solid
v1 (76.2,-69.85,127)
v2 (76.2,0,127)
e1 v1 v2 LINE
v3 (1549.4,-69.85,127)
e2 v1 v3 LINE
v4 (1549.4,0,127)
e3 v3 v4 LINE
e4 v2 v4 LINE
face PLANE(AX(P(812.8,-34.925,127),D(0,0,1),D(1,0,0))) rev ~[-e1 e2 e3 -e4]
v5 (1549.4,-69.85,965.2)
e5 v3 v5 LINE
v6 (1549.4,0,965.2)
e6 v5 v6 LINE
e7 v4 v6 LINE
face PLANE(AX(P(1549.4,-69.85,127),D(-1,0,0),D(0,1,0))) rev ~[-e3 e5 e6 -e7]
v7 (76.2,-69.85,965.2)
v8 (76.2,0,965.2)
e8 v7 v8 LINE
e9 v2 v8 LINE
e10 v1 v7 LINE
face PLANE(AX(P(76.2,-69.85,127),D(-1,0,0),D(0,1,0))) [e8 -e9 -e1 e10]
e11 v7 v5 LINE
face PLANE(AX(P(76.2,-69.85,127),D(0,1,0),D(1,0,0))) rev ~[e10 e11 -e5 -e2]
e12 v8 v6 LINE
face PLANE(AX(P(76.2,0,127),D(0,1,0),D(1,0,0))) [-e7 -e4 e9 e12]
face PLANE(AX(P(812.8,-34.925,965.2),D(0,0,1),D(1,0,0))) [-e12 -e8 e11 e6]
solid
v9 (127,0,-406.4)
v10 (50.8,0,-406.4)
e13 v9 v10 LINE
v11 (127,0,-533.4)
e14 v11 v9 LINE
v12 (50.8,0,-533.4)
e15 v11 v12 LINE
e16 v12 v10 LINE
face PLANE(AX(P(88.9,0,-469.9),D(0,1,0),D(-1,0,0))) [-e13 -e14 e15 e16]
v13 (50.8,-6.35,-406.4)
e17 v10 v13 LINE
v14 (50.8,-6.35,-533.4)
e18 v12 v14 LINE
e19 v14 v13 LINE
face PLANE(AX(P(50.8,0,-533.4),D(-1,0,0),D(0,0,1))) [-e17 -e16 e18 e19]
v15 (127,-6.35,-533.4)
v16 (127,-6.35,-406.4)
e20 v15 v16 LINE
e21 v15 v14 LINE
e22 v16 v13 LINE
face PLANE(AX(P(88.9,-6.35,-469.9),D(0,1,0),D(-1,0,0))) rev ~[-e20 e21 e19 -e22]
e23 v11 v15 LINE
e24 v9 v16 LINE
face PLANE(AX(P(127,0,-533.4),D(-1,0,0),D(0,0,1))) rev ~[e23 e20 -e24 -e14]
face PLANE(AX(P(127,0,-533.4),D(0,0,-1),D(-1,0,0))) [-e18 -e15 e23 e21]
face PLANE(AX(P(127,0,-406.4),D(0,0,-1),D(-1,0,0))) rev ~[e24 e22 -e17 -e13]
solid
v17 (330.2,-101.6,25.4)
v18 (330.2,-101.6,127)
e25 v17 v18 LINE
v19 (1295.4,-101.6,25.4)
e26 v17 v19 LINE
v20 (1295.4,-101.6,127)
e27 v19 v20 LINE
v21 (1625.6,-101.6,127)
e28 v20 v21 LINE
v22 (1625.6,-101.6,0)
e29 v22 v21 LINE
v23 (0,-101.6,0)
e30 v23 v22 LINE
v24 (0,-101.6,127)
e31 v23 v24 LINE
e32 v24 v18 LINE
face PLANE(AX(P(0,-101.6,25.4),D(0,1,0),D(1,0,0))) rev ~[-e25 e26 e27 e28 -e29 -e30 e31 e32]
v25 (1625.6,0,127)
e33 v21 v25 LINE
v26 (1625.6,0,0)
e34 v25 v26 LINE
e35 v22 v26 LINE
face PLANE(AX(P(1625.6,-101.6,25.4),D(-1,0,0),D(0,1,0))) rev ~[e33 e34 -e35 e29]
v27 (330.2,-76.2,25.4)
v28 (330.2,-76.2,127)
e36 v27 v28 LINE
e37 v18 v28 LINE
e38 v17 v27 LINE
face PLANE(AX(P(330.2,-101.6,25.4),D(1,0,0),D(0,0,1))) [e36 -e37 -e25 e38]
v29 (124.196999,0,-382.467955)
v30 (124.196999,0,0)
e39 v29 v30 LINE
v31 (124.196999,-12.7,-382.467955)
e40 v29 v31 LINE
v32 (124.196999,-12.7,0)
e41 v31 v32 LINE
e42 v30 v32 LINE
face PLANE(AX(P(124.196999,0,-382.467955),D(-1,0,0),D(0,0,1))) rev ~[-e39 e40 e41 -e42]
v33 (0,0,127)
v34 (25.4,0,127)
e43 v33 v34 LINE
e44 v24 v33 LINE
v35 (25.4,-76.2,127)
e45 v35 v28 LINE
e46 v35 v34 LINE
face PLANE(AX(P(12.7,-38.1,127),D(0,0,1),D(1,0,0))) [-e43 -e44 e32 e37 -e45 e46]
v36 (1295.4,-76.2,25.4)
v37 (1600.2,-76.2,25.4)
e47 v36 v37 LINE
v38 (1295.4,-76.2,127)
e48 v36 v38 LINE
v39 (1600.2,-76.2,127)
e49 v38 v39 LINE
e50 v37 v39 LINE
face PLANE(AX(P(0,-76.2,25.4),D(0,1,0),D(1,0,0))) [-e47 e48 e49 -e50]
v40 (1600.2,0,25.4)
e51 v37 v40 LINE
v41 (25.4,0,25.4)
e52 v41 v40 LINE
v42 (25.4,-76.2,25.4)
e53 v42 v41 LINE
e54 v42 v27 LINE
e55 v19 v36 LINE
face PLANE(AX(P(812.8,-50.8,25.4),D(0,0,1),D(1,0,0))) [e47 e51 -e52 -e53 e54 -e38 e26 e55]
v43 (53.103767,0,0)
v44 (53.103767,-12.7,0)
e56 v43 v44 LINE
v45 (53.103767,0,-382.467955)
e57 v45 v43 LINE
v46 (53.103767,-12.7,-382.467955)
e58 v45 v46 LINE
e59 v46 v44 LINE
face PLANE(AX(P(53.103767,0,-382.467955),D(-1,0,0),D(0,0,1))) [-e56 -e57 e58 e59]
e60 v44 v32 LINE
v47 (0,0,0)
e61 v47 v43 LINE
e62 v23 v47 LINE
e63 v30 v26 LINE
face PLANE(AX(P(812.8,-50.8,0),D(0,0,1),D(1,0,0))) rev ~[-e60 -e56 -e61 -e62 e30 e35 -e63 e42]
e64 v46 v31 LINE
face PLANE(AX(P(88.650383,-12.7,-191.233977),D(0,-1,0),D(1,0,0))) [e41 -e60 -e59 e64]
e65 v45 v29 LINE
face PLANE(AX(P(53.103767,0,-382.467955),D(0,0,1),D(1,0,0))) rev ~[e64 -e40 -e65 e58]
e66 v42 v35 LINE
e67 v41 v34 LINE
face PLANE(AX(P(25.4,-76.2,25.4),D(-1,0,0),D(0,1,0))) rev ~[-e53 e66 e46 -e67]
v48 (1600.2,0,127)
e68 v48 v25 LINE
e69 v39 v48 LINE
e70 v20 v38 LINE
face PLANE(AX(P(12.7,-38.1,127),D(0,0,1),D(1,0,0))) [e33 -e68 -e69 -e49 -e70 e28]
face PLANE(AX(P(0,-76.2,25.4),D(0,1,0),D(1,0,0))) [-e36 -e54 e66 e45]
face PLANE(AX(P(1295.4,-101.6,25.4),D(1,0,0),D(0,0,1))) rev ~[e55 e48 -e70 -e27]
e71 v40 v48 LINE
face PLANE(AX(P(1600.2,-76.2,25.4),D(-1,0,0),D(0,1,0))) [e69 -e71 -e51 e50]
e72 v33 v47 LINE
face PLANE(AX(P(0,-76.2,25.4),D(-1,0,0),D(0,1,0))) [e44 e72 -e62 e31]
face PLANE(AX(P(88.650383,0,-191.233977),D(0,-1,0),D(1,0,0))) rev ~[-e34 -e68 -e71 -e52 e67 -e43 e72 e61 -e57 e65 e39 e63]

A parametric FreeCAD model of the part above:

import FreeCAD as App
import Part
import Sketcher

V = App.Vector
Q = App.Units.Quantity

doc = App.newDocument("Part")
body = doc.addObject("PartDesign::Body", "Body")

# Sketch on XY plane
sketch1 = doc.addObject("Sketcher::SketchObject", "Sketch")
body.addObject(sketch1)
sketch1.AttachmentSupport = (doc.XY_Plane, [""])
sketch1.MapMode = "FlatFace"
sketch1.addGeometry([
    Part.LineSegment(V(0, 0, 0), V(0, -102, 0)),
    Part.LineSegment(V(0, -102, 0), V(1626, -102, 0)),
    Part.LineSegment(V(1626, -102, 0), V(1626, 0, 0)),
    Part.LineSegment(V(1626, 0, 0), V(0, 0, 0)),
], False)
sketch1.addConstraint([
    Sketcher.Constraint("Coincident", 0, 2, 1, 1),
    Sketcher.Constraint("Coincident", 1, 2, 2, 1),
    Sketcher.Constraint("Coincident", 2, 2, 3, 1),
    Sketcher.Constraint("Coincident", 3, 2, 0, 1),
    Sketcher.Constraint("Vertical", 0),
    Sketcher.Constraint("Horizontal", 1),
    Sketcher.Constraint("Vertical", 2),
    Sketcher.Constraint("Horizontal", 3),
    Sketcher.Constraint("Coincident", 3, 2, -1, 1),
    Sketcher.Constraint("DistanceX", 1, 1, 1, 2, Q("64 in")),
    Sketcher.Constraint("DistanceY", 0, 2, 0, 1, Q("4 in")),
])
pad1 = doc.addObject("PartDesign::Pad", "Pad")
body.addObject(pad1)
pad1.Profile = sketch1
pad1.Length = Q("1 in")

# Sketch on XY plane
sketch2 = doc.addObject("Sketcher::SketchObject", "Sketch001")
body.addObject(sketch2)
sketch2.AttachmentSupport = (doc.XY_Plane, [""])
sketch2.MapMode = "FlatFace"
sketch2.AttachmentOffset = App.Placement(V(0, 0, 1 * 25.4), App.Rotation())
sketch2.addGeometry([
    Part.LineSegment(V(0, -76, 0), V(0, -102, 0)),
    Part.LineSegment(V(0, -102, 0), V(1626, -102, 0)),
    Part.LineSegment(V(1626, -102, 0), V(1626, -76, 0)),
    Part.LineSegment(V(1626, -76, 0), V(0, -76, 0)),
], False)
sketch2.addConstraint([
    Sketcher.Constraint("Coincident", 0, 2, 1, 1),
    Sketcher.Constraint("Coincident", 1, 2, 2, 1),
    Sketcher.Constraint("Coincident", 2, 2, 3, 1),
    Sketcher.Constraint("Coincident", 3, 2, 0, 1),
    Sketcher.Constraint("Vertical", 0),
    Sketcher.Constraint("Horizontal", 1),
    Sketcher.Constraint("Vertical", 2),
    Sketcher.Constraint("Horizontal", 3),
    Sketcher.Constraint("PointOnObject", 0, 2, -2),
    Sketcher.Constraint("DistanceX", 1, 1, 1, 2, Q("64 in")),
    Sketcher.Constraint("DistanceY", 0, 2, 0, 1, Q("1 in")),
    Sketcher.Constraint("DistanceY", 0, 2, -1, 1, Q("4 in")),
])
pad2 = doc.addObject("PartDesign::Pad", "Pad001")
body.addObject(pad2)
pad2.Profile = sketch2
pad2.Length = Q("4 in")

# Sketch on XY plane
sketch3 = doc.addObject("Sketcher::SketchObject", "Sketch002")
body.addObject(sketch3)
sketch3.AttachmentSupport = (doc.XY_Plane, [""])
sketch3.MapMode = "FlatFace"
sketch3.AttachmentOffset = App.Placement(V(0, 0, 1 * 25.4), App.Rotation())
sketch3.addGeometry([
    Part.LineSegment(V(0, 0, 0), V(0, -76, 0)),  # 0
    Part.LineSegment(V(0, -76, 0), V(25, -76, 0)),  # 1
    Part.LineSegment(V(25, -76, 0), V(25, 0, 0)),  # 2
    Part.LineSegment(V(25, 0, 0), V(0, 0, 0)),  # 3
    Part.LineSegment(V(1600, 0, 0), V(1600, -76, 0)),  # 4
    Part.LineSegment(V(1600, -76, 0), V(1626, -76, 0)),  # 5
    Part.LineSegment(V(1626, -76, 0), V(1626, 0, 0)),  # 6
    Part.LineSegment(V(1626, 0, 0), V(1600, 0, 0)),  # 7
], False)
sketch3.addConstraint([
    Sketcher.Constraint("Coincident", 0, 2, 1, 1),
    Sketcher.Constraint("Coincident", 1, 2, 2, 1),
    Sketcher.Constraint("Coincident", 2, 2, 3, 1),
    Sketcher.Constraint("Coincident", 3, 2, 0, 1),
    Sketcher.Constraint("Coincident", 4, 2, 5, 1),
    Sketcher.Constraint("Coincident", 5, 2, 6, 1),
    Sketcher.Constraint("Coincident", 6, 2, 7, 1),
    Sketcher.Constraint("Coincident", 7, 2, 4, 1),
    Sketcher.Constraint("Vertical", 0),
    Sketcher.Constraint("Horizontal", 1),
    Sketcher.Constraint("Vertical", 2),
    Sketcher.Constraint("Horizontal", 3),
    Sketcher.Constraint("Vertical", 4),
    Sketcher.Constraint("Horizontal", 5),
    Sketcher.Constraint("Vertical", 6),
    Sketcher.Constraint("Horizontal", 7),
    Sketcher.Constraint("Coincident", 3, 2, -1, 1),
    Sketcher.Constraint("PointOnObject", 6, 2, -1),
    Sketcher.Constraint("Horizontal", 1, 2, 4, 2),
    Sketcher.Constraint("Equal", 3, 5),
    Sketcher.Constraint("DistanceX", 1, 1, 1, 2, Q("1 in")),
    Sketcher.Constraint("DistanceY", 0, 2, 0, 1, Q("3 in")),
    Sketcher.Constraint("DistanceX", -1, 1, 4, 2, Q("63 in")),
])
pad3 = doc.addObject("PartDesign::Pad", "Pad002")
body.addObject(pad3)
pad3.Profile = sketch3
pad3.Length = Q("4 in")

# Sketch on XZ plane
sketch4 = doc.addObject("Sketcher::SketchObject", "Sketch003")
body.addObject(sketch4)
sketch4.AttachmentSupport = (doc.XZ_Plane, [""])
sketch4.MapMode = "FlatFace"
sketch4.AttachmentOffset = App.Placement(V(0, 0, 4 * 25.4), App.Rotation())
sketch4.addGeometry([
    Part.LineSegment(V(330, 127, 0), V(330, 25, 0)),
    Part.LineSegment(V(330, 25, 0), V(1295, 25, 0)),
    Part.LineSegment(V(1295, 25, 0), V(1295, 127, 0)),
    Part.LineSegment(V(1295, 127, 0), V(330, 127, 0)),
], False)
sketch4.addConstraint([
    Sketcher.Constraint("Coincident", 0, 2, 1, 1),
    Sketcher.Constraint("Coincident", 1, 2, 2, 1),
    Sketcher.Constraint("Coincident", 2, 2, 3, 1),
    Sketcher.Constraint("Coincident", 3, 2, 0, 1),
    Sketcher.Constraint("Vertical", 0),
    Sketcher.Constraint("Horizontal", 1),
    Sketcher.Constraint("Vertical", 2),
    Sketcher.Constraint("Horizontal", 3),
    Sketcher.Constraint("DistanceX", 1, 1, 1, 2, Q("38 in")),
    Sketcher.Constraint("DistanceY", 0, 2, 0, 1, Q("4 in")),
    Sketcher.Constraint("DistanceX", -1, 1, 0, 2, Q("13 in")),
    Sketcher.Constraint("DistanceY", -1, 1, 0, 2, Q("1 in")),
])
pocket1 = doc.addObject("PartDesign::Pocket", "Pocket")
body.addObject(pocket1)
pocket1.Profile = sketch4
pocket1.Length = Q("1 in")

# Sketch on XZ plane
sketch5 = doc.addObject("Sketcher::SketchObject", "Sketch004")
body.addObject(sketch5)
sketch5.AttachmentSupport = (doc.XZ_Plane, [""])
sketch5.MapMode = "FlatFace"
sketch5.addGeometry([
    Part.LineSegment(V(53, 0, 0), V(53, -382, 0)),
    Part.LineSegment(V(53, -382, 0), V(124, -382, 0)),
    Part.LineSegment(V(124, -382, 0), V(124, 0, 0)),
    Part.LineSegment(V(124, 0, 0), V(53, 0, 0)),
], False)
sketch5.addConstraint([
    Sketcher.Constraint("Coincident", 0, 2, 1, 1),
    Sketcher.Constraint("Coincident", 1, 2, 2, 1),
    Sketcher.Constraint("Coincident", 2, 2, 3, 1),
    Sketcher.Constraint("Coincident", 3, 2, 0, 1),
    Sketcher.Constraint("Vertical", 0),
    Sketcher.Constraint("Horizontal", 1),
    Sketcher.Constraint("Vertical", 2),
    Sketcher.Constraint("Horizontal", 3),
    Sketcher.Constraint("PointOnObject", 2, 2, -1),
    Sketcher.Constraint("DistanceX", 1, 1, 1, 2, 71.093232),
    Sketcher.Constraint("DistanceX", -1, 1, 1, 2, 124.196999),
    Sketcher.Constraint("DistanceY", 0, 2, 0, 1, 382.467955),
])
pad4 = doc.addObject("PartDesign::Pad", "Pad003")
body.addObject(pad4)
pad4.Profile = sketch5
pad4.Length = Q("0.5 in")
body2 = doc.addObject("PartDesign::Body", "Body001")

# Sketch on XY plane
sketch6 = doc.addObject("Sketcher::SketchObject", "Sketch005")
body2.addObject(sketch6)
sketch6.AttachmentSupport = (doc.getObject("XY_Plane001"), [""])
sketch6.MapMode = "FlatFace"
sketch6.AttachmentOffset = App.Placement(V(0, 0, 5 * 25.4), App.Rotation())
sketch6.addGeometry([
    Part.LineSegment(V(76, 0, 0), V(76, -70, 0)),
    Part.LineSegment(V(76, -70, 0), V(1549, -70, 0)),
    Part.LineSegment(V(1549, -70, 0), V(1549, 0, 0)),
    Part.LineSegment(V(1549, 0, 0), V(76, 0, 0)),
], False)
sketch6.addConstraint([
    Sketcher.Constraint("Coincident", 0, 2, 1, 1),
    Sketcher.Constraint("Coincident", 1, 2, 2, 1),
    Sketcher.Constraint("Coincident", 2, 2, 3, 1),
    Sketcher.Constraint("Coincident", 3, 2, 0, 1),
    Sketcher.Constraint("Vertical", 0),
    Sketcher.Constraint("Horizontal", 1),
    Sketcher.Constraint("Vertical", 2),
    Sketcher.Constraint("Horizontal", 3),
    Sketcher.Constraint("PointOnObject", 2, 2, -1),
    Sketcher.Constraint("DistanceX", 1, 1, 1, 2, Q("58 in")),
    Sketcher.Constraint("DistanceX", -1, 1, 0, 2, Q("3 in")),
    Sketcher.Constraint("DistanceY", 0, 2, 0, 1, Q("2.75 in")),
])
pad5 = doc.addObject("PartDesign::Pad", "Pad004")
body2.addObject(pad5)
pad5.Profile = sketch6
pad5.Length = Q("33 in")
body3 = doc.addObject("PartDesign::Body", "Body002")

# Sketch on XZ plane
sketch7 = doc.addObject("Sketcher::SketchObject", "Sketch006")
body3.addObject(sketch7)
sketch7.AttachmentSupport = (doc.getObject("XZ_Plane002"), [""])
sketch7.MapMode = "FlatFace"
sketch7.addGeometry([
    Part.LineSegment(V(127, -406, 0), V(127, -533, 0)),
    Part.LineSegment(V(127, -533, 0), V(51, -533, 0)),
    Part.LineSegment(V(51, -533, 0), V(51, -406, 0)),
    Part.LineSegment(V(51, -406, 0), V(127, -406, 0)),
], False)
sketch7.addConstraint([
    Sketcher.Constraint("Coincident", 0, 2, 1, 1),
    Sketcher.Constraint("Coincident", 1, 2, 2, 1),
    Sketcher.Constraint("Coincident", 2, 2, 3, 1),
    Sketcher.Constraint("Coincident", 3, 2, 0, 1),
    Sketcher.Constraint("Vertical", 0),
    Sketcher.Constraint("Horizontal", 1),
    Sketcher.Constraint("Vertical", 2),
    Sketcher.Constraint("Horizontal", 3),
    Sketcher.Constraint("DistanceX", 1, 2, 1, 1, Q("3 in")),
    Sketcher.Constraint("DistanceY", 0, 2, 0, 1, Q("5 in")),
    Sketcher.Constraint("DistanceX", -1, 1, 0, 2, Q("5 in")),
    Sketcher.Constraint("DistanceY", 0, 2, -1, 1, Q("21 in")),
])
pad6 = doc.addObject("PartDesign::Pad", "Pad005")
body3.addObject(pad6)
pad6.Profile = sketch7
pad6.Length = Q("0.25 in")

doc.recompute()
